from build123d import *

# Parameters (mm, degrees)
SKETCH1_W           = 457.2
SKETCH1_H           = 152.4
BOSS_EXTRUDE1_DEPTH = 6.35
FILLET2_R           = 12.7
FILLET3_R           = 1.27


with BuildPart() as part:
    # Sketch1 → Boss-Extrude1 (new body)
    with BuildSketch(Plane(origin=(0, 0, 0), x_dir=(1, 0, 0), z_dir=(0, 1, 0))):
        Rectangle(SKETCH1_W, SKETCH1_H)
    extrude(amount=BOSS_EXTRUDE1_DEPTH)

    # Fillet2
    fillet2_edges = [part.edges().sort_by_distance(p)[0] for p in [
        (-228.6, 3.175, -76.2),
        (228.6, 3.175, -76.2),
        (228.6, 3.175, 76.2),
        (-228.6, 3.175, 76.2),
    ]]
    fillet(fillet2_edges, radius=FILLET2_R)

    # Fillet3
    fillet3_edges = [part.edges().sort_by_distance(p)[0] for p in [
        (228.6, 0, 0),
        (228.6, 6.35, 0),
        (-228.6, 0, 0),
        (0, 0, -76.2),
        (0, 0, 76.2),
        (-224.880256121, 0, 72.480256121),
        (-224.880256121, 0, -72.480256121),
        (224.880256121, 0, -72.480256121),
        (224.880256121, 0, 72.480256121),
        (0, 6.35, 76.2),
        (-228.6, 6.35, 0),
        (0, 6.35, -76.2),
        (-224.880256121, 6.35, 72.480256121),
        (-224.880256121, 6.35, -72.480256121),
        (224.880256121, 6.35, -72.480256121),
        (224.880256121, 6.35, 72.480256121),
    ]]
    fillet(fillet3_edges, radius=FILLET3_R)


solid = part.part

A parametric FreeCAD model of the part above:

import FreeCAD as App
import Part
import Sketcher
from FreeCAD import Vector
Q = App.Units.Quantity


def edges_at(feature, points):
    """Names of the edges that pass closest to the given points."""
    edges = feature.Shape.Edges
    near = lambda p: min(range(len(edges)), key=lambda i: edges[i].distToShape(Part.Vertex(*p))[0])
    return sorted({f"Edge{near(p) + 1}" for p in points})


def add_polygon(sketch, points):
    """Adds a closed chain of lines whose ends are joined by coincident constraints."""
    first, n = sketch.GeometryCount, len(points)
    for a, b in zip(points, points[1:] + points[:1]):
        sketch.addGeometry(Part.LineSegment(App.Vector(*a, 0), App.Vector(*b, 0)), False)
    for i in range(n):
        sketch.addConstraint(Sketcher.Constraint("Coincident", first + i, 2, first + (i + 1) % n, 1))

doc = App.newDocument("Part")
body = doc.addObject("PartDesign::Body", "Body")

# Sketch on XZ plane
sketch1 = body.newObject("Sketcher::SketchObject", "Sketch")
sketch1.AttachmentSupport = (doc.getObject("XZ_Plane"), [""])
sketch1.MapMode = "FlatFace"
add_polygon(sketch1, [(-229, -76), (-229, 76), (229, 76), (229, -76)])  # lines 0-3
sketch1.addConstraint([
    Sketcher.Constraint("Vertical", 0),
    Sketcher.Constraint("Horizontal", 1),
    Sketcher.Constraint("Vertical", 2),
    Sketcher.Constraint("Horizontal", 3),
    Sketcher.Constraint("Symmetric", 0, 2, 2, 2, -1, 1),
    Sketcher.Constraint("DistanceX", 1, 1, 1, 2, Q("18 in")),
    Sketcher.Constraint("DistanceY", 0, 1, 0, 2, Q("6 in")),
])
pad1 = body.newObject("PartDesign::Pad", "Pad")
pad1.Profile = sketch1
pad1.Length = Q("0.25 in")
pad1.Reversed = True
doc.recompute()

fillet = body.newObject("PartDesign::Fillet", "Fillet")
fillet.Base = (pad1, edges_at(pad1, [
    (-228.6, 3.175, -76.2),
    (228.6, 3.175, -76.2),
    (228.6, 3.175, 76.2),
    (-228.6, 3.175, 76.2),
]))
fillet.Radius = Q("0.5 in")
doc.recompute()

fillet2 = body.newObject("PartDesign::Fillet", "Fillet001")
fillet2.Base = (fillet, edges_at(fillet, [
    (228.6, 0, 0),
    (228.6, 6.35, 0),
    (-228.6, 0, 0),
    (0, 0, -76.2),
    (0, 0, 76.2),
    (-224.88, 0, 72.48),
    (-224.88, 0, -72.48),
    (224.88, 0, -72.48),
    (224.88, 0, 72.48),
    (0, 6.35, 76.2),
    (-228.6, 6.35, 0),
    (0, 6.35, -76.2),
    (-224.88, 6.35, 72.48),
    (-224.88, 6.35, -72.48),
    (224.88, 6.35, -72.48),
    (224.88, 6.35, 72.48),
]))
fillet2.Radius = Q("0.05 in")

doc.recompute()
